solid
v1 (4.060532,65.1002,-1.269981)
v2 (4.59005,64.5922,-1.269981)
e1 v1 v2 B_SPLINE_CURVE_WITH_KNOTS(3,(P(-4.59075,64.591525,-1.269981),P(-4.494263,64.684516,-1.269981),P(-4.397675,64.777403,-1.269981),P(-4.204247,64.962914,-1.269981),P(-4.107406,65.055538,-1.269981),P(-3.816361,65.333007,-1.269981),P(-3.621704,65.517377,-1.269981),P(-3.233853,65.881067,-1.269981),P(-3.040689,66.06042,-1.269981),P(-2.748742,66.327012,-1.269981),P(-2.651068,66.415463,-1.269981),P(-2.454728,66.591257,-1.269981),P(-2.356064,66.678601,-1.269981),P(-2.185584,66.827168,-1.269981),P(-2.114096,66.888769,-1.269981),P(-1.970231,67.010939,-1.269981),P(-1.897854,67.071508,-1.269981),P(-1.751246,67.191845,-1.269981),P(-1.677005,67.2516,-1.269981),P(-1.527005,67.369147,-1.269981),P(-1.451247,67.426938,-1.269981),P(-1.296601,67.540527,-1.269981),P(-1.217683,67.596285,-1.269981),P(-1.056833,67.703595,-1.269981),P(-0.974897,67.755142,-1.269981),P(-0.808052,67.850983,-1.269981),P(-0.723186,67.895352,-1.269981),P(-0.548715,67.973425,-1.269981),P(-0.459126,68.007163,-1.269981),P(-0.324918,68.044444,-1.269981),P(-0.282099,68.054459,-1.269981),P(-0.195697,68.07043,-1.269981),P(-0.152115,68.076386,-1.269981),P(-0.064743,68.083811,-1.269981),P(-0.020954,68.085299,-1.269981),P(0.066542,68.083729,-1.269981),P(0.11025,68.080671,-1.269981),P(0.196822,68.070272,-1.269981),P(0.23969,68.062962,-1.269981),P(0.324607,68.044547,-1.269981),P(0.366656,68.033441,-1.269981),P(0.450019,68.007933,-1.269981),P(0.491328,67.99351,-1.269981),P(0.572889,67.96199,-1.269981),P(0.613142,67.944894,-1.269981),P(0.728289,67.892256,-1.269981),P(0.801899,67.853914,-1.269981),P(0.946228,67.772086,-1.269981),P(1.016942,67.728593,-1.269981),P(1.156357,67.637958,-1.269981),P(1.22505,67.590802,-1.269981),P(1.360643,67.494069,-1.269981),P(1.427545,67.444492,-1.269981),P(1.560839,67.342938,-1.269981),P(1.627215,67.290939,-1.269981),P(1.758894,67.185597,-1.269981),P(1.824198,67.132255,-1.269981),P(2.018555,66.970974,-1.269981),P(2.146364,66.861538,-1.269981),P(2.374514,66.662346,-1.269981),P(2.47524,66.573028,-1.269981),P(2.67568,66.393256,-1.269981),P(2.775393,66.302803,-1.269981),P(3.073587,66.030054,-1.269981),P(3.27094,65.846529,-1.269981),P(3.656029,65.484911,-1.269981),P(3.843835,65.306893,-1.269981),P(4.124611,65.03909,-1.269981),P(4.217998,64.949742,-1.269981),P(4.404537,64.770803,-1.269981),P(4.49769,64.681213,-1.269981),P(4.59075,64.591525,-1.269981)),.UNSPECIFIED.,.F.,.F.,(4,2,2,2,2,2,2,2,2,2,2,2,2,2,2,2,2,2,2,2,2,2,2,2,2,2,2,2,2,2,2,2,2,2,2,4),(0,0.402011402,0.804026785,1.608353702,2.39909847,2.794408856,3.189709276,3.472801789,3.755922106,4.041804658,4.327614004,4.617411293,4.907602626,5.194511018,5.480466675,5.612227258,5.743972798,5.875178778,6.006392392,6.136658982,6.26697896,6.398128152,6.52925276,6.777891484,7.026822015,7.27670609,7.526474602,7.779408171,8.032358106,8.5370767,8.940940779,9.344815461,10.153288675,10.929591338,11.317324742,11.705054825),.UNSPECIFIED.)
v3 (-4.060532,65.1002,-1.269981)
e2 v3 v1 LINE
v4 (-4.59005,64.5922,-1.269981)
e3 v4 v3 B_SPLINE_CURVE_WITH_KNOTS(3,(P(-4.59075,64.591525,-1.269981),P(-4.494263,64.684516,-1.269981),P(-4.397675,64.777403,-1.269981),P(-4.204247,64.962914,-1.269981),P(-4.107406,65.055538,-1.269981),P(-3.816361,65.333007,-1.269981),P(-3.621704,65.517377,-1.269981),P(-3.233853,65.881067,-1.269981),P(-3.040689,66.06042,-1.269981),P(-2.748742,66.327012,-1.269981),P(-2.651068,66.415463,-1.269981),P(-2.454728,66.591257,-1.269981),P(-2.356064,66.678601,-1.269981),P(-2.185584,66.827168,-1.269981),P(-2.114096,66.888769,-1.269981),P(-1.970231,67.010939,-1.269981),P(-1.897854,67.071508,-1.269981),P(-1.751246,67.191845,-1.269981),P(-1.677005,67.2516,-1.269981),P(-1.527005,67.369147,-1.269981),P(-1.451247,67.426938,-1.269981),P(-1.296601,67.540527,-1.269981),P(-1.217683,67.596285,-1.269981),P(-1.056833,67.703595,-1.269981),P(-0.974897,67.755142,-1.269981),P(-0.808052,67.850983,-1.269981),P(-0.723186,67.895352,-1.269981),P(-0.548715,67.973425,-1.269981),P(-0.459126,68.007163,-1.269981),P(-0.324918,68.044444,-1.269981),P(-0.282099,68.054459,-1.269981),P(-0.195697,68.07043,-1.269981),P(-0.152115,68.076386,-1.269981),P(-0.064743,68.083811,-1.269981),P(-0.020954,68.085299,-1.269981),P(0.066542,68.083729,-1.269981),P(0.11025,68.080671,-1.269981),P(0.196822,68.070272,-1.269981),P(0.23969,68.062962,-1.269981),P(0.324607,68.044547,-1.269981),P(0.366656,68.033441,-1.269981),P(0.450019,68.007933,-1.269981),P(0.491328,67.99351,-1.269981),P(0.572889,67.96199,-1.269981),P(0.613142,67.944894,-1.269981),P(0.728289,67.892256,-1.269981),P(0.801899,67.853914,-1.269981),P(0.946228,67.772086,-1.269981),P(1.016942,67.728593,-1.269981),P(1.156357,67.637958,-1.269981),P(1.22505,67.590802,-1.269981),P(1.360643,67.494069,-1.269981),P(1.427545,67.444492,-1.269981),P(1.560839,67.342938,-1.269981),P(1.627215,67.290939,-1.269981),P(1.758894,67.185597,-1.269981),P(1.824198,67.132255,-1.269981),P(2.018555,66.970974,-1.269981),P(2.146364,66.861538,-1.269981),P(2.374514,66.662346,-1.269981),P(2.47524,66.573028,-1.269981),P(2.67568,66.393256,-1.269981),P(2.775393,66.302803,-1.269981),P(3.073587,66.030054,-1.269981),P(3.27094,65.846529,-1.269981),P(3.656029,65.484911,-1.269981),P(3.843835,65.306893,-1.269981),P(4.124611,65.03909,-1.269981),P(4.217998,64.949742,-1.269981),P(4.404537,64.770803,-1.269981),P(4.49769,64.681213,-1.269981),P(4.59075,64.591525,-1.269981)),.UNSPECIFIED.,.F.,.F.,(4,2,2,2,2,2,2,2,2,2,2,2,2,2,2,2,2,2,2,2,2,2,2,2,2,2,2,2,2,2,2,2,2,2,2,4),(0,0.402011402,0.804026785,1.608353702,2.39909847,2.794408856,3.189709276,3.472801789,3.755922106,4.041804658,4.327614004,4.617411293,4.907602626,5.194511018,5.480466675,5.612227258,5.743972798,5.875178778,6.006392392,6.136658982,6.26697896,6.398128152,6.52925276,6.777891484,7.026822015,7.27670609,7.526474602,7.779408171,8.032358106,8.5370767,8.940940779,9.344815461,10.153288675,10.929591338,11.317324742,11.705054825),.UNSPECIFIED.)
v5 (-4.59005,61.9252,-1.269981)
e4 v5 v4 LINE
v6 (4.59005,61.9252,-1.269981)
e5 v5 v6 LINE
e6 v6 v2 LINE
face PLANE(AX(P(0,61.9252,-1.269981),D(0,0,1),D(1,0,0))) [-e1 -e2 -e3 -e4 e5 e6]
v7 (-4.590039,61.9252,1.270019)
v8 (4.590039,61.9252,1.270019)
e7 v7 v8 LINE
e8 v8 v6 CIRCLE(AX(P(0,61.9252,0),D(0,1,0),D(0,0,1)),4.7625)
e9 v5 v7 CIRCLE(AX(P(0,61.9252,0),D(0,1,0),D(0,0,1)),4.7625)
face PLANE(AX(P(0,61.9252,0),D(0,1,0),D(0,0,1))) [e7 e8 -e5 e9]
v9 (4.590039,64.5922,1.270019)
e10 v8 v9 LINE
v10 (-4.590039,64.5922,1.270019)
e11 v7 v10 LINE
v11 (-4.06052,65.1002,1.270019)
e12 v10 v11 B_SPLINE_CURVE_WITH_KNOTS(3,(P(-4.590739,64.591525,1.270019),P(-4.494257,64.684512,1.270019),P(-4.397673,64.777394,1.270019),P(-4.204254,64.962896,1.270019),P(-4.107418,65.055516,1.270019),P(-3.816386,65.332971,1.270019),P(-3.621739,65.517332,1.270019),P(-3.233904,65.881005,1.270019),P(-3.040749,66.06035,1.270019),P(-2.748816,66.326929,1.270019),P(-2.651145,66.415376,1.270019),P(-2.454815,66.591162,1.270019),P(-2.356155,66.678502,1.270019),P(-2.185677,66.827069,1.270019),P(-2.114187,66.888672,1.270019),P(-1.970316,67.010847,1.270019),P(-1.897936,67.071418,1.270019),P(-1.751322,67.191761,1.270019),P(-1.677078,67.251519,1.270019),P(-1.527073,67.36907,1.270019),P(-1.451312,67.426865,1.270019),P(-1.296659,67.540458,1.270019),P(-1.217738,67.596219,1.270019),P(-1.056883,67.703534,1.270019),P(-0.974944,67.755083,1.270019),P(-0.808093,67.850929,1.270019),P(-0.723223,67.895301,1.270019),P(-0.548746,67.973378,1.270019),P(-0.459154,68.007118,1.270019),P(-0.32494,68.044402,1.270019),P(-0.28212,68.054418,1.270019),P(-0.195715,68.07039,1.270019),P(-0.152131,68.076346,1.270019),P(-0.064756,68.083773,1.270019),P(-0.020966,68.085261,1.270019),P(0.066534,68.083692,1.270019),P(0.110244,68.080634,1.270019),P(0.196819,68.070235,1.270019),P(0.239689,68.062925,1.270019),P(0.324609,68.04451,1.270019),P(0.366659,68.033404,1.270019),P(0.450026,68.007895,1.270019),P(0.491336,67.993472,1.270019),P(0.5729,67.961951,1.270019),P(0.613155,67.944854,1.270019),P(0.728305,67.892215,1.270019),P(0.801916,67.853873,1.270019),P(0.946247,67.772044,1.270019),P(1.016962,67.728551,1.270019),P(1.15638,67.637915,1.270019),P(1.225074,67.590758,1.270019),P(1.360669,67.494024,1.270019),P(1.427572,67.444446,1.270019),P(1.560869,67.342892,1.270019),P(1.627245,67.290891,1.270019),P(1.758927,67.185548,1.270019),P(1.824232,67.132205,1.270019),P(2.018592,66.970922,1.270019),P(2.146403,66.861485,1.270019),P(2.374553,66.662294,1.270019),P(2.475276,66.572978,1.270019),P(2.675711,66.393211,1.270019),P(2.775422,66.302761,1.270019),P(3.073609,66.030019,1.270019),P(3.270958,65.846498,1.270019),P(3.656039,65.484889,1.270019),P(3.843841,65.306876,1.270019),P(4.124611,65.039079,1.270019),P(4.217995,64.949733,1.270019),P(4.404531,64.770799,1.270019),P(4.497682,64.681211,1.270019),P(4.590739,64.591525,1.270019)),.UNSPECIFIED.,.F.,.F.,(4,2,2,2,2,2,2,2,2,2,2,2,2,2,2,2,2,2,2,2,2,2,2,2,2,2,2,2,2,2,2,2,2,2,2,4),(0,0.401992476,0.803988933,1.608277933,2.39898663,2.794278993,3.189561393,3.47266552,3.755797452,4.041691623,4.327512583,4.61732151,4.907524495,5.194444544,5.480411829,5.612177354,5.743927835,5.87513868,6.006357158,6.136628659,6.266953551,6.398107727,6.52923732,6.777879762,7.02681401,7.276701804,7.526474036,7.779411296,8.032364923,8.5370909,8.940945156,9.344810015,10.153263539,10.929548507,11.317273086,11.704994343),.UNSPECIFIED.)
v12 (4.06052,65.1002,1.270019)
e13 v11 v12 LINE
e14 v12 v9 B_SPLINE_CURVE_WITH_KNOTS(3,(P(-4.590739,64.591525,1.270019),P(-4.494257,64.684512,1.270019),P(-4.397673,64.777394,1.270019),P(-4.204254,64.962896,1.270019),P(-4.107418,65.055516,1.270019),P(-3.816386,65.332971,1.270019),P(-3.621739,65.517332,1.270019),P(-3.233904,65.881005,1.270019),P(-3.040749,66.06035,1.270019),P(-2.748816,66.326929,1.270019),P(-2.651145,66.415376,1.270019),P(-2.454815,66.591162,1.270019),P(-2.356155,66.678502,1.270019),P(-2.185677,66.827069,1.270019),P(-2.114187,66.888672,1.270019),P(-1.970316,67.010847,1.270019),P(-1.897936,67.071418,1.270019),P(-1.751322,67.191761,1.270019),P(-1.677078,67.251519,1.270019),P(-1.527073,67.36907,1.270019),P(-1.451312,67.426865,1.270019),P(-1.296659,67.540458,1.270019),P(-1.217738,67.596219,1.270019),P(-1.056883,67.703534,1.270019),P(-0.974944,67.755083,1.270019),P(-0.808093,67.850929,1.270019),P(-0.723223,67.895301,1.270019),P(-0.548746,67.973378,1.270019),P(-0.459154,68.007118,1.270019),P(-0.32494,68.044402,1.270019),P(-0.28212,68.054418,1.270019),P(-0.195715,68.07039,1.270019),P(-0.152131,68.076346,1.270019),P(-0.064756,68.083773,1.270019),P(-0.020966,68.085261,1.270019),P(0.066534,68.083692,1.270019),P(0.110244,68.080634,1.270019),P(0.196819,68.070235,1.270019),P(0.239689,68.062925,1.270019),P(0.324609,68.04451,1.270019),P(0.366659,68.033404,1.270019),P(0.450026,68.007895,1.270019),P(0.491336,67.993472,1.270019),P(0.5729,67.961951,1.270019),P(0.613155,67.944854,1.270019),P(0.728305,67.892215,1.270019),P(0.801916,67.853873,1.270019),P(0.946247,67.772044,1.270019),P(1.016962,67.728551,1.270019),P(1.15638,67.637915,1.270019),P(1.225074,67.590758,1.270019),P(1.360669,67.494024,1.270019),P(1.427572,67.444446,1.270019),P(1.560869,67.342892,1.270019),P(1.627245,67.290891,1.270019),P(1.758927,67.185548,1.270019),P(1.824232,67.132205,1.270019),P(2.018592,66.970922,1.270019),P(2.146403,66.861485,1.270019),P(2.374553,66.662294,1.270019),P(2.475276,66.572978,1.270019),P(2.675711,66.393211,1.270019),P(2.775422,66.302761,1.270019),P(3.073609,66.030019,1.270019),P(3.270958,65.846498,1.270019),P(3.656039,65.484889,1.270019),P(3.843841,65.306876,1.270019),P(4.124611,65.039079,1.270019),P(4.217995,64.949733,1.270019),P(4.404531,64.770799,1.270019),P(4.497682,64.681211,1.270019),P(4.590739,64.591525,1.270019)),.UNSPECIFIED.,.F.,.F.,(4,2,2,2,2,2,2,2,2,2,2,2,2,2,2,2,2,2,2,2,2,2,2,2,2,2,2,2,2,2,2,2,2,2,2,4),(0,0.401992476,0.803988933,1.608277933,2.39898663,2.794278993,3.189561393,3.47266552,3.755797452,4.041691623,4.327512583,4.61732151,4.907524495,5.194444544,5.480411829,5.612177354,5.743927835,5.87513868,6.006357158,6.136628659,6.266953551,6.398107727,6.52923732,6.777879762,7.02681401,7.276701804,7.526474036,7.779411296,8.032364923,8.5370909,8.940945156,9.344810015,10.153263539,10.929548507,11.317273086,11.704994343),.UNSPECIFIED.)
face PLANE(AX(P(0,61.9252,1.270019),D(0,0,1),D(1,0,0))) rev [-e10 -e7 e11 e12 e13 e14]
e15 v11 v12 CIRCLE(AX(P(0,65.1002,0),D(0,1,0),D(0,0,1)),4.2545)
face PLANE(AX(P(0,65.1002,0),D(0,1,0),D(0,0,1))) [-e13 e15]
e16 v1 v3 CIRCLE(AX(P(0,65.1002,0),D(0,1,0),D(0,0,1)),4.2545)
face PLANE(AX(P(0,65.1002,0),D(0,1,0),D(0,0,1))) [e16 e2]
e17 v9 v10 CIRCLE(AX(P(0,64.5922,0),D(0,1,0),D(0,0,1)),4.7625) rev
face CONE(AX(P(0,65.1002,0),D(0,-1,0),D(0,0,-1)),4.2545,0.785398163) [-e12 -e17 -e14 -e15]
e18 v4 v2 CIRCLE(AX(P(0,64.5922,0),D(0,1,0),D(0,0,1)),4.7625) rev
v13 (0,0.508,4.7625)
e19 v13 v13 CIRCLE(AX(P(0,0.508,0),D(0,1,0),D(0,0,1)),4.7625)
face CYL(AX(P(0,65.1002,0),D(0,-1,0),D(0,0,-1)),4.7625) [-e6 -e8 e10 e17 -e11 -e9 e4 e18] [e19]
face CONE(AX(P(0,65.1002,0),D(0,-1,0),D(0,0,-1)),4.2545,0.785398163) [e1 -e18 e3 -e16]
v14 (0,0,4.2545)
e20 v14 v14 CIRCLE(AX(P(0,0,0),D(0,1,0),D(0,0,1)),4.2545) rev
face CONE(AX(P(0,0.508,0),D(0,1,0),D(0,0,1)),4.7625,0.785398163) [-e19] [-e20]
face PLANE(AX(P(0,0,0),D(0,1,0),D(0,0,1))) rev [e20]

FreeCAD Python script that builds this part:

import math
import FreeCAD as App
import Part
import Sketcher

V = App.Vector
Q = App.Units.Quantity


def edges_at(feature, points):
    """Names of the edges that pass closest to the given points."""
    edges = feature.Shape.Edges
    near = lambda p: min(range(len(edges)), key=lambda i: edges[i].distToShape(Part.Vertex(*p))[0])
    return sorted({f"Edge{near(p) + 1}" for p in points})

doc = App.newDocument("Part")
params = doc.addObject("Spreadsheet::Sheet", "Params")
for row, (alias, value) in enumerate([
    ("sketch1_diameter", "0.375 in"),
    ("pad1_length", "2.563 in"),
    ("chamfer_size", "0.02 in"),
    ("pocket1_length", "0.125 in"),
], start=1):
    params.set(f"A{row}", alias)
    params.set(f"B{row}", "=" + value)
    params.setAlias(f"B{row}", alias)

body = doc.addObject("PartDesign::Body", "Body")

# Sketch on XZ plane
sketch1 = body.newObject("Sketcher::SketchObject", "Sketch")
sketch1.AttachmentSupport = (doc.getObject("XZ_Plane"), [""])
sketch1.MapMode = "FlatFace"
sketch1.addGeometry(Part.Circle(V(0, 0, 0), V(0, 0, 1), 4.8), False)
sketch1.addConstraint([
    Sketcher.Constraint("Coincident", 0, 3, -1, 1),
    Sketcher.Constraint("Diameter", 0, Q("0.375 in")),
])
sketch1.setExpression("Constraints[1]", "Params.sketch1_diameter")
pad1 = body.newObject("PartDesign::Pad", "Pad")
pad1.Profile = sketch1
pad1.setExpression("Length", "Params.pad1_length")
pad1.Reversed = True
doc.recompute()

chamfer = body.newObject("PartDesign::Chamfer", "Chamfer")
chamfer.Base = (pad1, edges_at(pad1, [(-4.763, 0, 0), (-4.763, 65.1, 0)]))
chamfer.setExpression("Size", "Params.chamfer_size")

# Sketch on XZ plane
sketch2 = body.newObject("Sketcher::SketchObject", "Sketch001")
sketch2.AttachmentSupport = (doc.getObject("XZ_Plane"), [""])
sketch2.MapMode = "FlatFace"
sketch2.AttachmentOffset = App.Placement(V(0, 0, -2.563 * 25.4), App.Rotation())
sketch2.addGeometry([
    Part.LineSegment(V(-4.6, 1.3, 0), V(4.7, 1.3, 0)),
    Part.ArcOfCircle(Part.Circle(V(-0.4, 0.1, 0), V(0, 0, 1), 5.2), math.radians(-15), math.radians(13)),
    Part.LineSegment(V(4.6, -1.3, 0), V(-4.6, -1.3, 0)),
    Part.ArcOfCircle(Part.Circle(V(0.5, -0.1, 0), V(0, 0, 1), 5.3), math.radians(165), math.radians(193)),
], False)
sketch2.addConstraint([
    Sketcher.Constraint("Coincident", 0, 2, 1, 2),
    Sketcher.Constraint("Coincident", 1, 1, 2, 1),
    Sketcher.Constraint("Coincident", 2, 2, 3, 2),
    Sketcher.Constraint("Coincident", 3, 1, 0, 1),
    Sketcher.Constraint("Horizontal", 0),
    Sketcher.Constraint("Horizontal", 2),
    Sketcher.Constraint("DistanceY", 1, 1, 0, 2, Q("0.1 in")),
    Sketcher.Constraint("Radius", 1, Q("5.209896 mm")),
    Sketcher.Constraint("Radius", 3, Q("5.257224 mm")),
    Sketcher.Constraint("DistanceX", 0, 1, 0, 2, Q("9.240218 mm")),
    Sketcher.Constraint("DistanceX", 2, 2, 2, 1, Q("9.239942 mm")),
    Sketcher.Constraint("DistanceX", -1, 1, 0, 2, Q("4.650032 mm")),
    Sketcher.Constraint("DistanceY", -1, 1, 0, 2, Q("1.270019 mm")),
    Sketcher.Constraint("DistanceX", -1, 1, 1, 1, Q("4.59005 mm")),
])
pocket1 = body.newObject("PartDesign::Pocket", "Pocket")
pocket1.Profile = sketch2
pocket1.setExpression("Length", "Params.pocket1_length")
pocket1.Reversed = True

doc.recompute()
